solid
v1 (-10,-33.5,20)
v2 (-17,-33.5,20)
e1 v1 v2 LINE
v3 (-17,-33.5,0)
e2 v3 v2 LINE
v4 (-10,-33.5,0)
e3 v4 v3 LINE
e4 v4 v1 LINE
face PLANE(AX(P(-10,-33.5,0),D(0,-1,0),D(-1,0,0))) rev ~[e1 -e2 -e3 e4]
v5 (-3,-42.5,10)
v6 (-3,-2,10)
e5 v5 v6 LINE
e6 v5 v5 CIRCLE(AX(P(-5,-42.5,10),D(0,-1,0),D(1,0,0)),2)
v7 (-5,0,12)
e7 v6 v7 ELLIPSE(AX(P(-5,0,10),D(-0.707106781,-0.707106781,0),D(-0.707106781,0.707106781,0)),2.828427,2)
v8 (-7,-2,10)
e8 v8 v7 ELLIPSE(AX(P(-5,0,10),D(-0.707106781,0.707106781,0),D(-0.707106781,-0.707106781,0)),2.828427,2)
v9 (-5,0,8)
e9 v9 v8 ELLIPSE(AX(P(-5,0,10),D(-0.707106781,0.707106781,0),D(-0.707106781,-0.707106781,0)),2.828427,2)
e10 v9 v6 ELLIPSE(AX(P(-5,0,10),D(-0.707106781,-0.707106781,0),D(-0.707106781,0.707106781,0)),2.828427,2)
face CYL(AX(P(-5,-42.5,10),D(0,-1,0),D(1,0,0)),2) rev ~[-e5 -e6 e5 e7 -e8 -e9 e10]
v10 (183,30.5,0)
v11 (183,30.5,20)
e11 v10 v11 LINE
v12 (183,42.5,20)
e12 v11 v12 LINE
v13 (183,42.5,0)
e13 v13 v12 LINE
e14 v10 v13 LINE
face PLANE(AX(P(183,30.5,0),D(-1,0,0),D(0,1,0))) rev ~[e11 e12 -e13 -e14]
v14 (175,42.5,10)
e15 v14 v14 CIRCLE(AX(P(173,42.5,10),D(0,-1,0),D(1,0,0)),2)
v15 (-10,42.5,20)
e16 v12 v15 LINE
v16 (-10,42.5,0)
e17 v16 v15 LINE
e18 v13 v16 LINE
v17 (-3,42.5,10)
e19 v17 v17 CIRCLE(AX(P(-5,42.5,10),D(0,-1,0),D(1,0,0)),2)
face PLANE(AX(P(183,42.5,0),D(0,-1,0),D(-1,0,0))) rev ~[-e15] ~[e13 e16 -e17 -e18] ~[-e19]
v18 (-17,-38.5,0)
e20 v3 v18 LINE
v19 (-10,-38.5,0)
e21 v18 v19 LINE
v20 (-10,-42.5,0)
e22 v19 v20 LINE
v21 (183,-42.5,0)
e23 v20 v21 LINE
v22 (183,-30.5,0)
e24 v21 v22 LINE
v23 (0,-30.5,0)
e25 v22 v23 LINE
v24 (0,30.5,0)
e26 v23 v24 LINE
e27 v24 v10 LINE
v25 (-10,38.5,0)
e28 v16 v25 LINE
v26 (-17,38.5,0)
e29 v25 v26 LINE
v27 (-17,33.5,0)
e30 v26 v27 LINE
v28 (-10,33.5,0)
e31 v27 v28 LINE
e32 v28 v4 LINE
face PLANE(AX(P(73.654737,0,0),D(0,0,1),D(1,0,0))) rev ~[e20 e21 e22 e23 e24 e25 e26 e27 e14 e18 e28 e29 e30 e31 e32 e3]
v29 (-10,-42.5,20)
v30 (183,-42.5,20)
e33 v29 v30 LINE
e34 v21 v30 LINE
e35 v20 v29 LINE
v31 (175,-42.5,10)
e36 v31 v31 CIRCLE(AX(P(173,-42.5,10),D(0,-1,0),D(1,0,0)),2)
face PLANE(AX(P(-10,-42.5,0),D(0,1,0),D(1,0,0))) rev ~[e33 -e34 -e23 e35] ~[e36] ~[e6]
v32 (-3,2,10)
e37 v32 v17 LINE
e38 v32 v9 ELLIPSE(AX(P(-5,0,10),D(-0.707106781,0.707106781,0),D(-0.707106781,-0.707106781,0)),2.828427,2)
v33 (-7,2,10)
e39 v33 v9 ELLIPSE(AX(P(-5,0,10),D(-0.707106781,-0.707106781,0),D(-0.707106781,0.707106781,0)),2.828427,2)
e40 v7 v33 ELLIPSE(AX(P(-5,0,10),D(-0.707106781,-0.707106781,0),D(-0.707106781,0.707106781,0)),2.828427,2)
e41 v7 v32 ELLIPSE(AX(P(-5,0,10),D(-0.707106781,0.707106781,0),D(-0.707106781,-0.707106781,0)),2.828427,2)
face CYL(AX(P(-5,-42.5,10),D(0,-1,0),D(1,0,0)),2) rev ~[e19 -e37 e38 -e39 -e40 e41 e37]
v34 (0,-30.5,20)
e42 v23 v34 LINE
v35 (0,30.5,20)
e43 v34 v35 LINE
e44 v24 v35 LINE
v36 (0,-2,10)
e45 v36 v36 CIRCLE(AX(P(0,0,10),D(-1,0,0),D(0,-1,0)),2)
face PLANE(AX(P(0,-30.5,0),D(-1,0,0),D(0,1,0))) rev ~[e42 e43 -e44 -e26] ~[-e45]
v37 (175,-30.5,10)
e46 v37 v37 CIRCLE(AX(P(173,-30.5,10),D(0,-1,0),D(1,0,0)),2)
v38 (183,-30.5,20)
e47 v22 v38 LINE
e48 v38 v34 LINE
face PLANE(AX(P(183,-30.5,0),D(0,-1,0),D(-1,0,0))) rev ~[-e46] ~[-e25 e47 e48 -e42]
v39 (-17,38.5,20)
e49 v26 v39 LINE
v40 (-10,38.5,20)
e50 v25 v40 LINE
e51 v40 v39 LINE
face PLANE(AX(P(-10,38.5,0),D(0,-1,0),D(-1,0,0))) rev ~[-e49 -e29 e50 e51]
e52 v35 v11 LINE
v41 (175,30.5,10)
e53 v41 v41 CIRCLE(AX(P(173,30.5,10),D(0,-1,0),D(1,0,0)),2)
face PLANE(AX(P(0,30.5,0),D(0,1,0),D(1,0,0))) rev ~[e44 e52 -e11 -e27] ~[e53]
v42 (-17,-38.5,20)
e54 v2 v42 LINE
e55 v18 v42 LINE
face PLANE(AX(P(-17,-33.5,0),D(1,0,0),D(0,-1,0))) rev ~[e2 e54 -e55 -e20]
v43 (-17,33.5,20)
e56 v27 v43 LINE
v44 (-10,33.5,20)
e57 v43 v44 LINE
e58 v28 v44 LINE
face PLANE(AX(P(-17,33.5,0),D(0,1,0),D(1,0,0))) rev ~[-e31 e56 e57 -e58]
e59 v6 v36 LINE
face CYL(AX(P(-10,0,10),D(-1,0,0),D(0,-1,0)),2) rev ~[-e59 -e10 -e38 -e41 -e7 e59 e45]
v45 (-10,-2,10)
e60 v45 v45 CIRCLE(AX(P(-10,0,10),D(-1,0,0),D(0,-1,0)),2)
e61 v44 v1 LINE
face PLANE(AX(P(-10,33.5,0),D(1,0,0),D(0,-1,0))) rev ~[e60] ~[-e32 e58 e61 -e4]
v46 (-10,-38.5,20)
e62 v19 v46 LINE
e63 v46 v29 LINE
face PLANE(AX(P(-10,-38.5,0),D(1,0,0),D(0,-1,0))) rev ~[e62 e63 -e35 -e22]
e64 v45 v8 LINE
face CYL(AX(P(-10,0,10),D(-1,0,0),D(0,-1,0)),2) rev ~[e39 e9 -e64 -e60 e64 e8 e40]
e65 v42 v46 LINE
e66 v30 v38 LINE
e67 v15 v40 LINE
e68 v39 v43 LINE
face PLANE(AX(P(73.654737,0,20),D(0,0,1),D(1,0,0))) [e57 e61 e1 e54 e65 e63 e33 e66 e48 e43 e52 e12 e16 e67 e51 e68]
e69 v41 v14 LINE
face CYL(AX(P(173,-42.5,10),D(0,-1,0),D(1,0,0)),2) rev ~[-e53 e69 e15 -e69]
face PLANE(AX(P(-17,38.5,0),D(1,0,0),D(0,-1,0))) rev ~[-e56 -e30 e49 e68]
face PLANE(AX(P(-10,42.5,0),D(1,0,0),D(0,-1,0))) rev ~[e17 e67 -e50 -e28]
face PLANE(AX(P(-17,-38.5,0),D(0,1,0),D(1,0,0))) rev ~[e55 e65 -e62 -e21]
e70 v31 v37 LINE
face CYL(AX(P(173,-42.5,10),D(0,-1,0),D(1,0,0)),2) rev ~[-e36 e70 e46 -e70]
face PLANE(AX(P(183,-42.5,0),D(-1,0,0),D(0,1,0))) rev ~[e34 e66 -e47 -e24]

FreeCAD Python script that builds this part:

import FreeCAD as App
import Part
import Sketcher
from FreeCAD import Vector


def add_polygon(sketch, points):
    """Adds a closed chain of lines whose ends are joined by coincident constraints."""
    first, n = sketch.GeometryCount, len(points)
    for a, b in zip(points, points[1:] + points[:1]):
        sketch.addGeometry(Part.LineSegment(App.Vector(*a, 0), App.Vector(*b, 0)), False)
    for i in range(n):
        sketch.addConstraint(Sketcher.Constraint("Coincident", first + i, 2, first + (i + 1) % n, 1))

doc = App.newDocument("Part")
body = doc.addObject("PartDesign::Body", "Body")

# Sketch on XY plane
sketch1 = body.newObject("Sketcher::SketchObject", "Sketch")
sketch1.AttachmentSupport = (doc.getObject("XY_Plane"), [""])
sketch1.MapMode = "FlatFace"
add_polygon(sketch1, [(-10, -42.5), (183, -42.5), (183, -30.5), (0, -30.5), (0, 30.5), (183, 30.5), (183, 42.5), (-10, 42.5), (-10, 38.5), (-17, 38.5), (-17, 33.5), (-10, 33.5), (-10, -33.5), (-17, -33.5), (-17, -38.5), (-10, -38.5)])  # lines 0-15
sketch1.addConstraint(Sketcher.Constraint("Horizontal", 0))
sketch1.addConstraint(Sketcher.Constraint("Vertical", 1))
sketch1.addConstraint(Sketcher.Constraint("Horizontal", 2))
sketch1.addConstraint(Sketcher.Constraint("Vertical", 3))
sketch1.addConstraint(Sketcher.Constraint("Horizontal", 4))
sketch1.addConstraint(Sketcher.Constraint("Vertical", 5))
sketch1.addConstraint(Sketcher.Constraint("Horizontal", 6))
sketch1.addConstraint(Sketcher.Constraint("Vertical", 7))
sketch1.addConstraint(Sketcher.Constraint("Horizontal", 8))
sketch1.addConstraint(Sketcher.Constraint("Vertical", 9))
sketch1.addConstraint(Sketcher.Constraint("Horizontal", 10))
sketch1.addConstraint(Sketcher.Constraint("Vertical", 11))
sketch1.addConstraint(Sketcher.Constraint("Horizontal", 12))
sketch1.addConstraint(Sketcher.Constraint("Vertical", 13))
sketch1.addConstraint(Sketcher.Constraint("Horizontal", 14))
sketch1.addConstraint(Sketcher.Constraint("Vertical", 15))
sketch1.addConstraint(Sketcher.Constraint("Symmetric", 2, 2, 3, 2, -1, 1))
sketch1.addConstraint(Sketcher.Constraint("Symmetric", 0, 2, 5, 2, -1))
sketch1.addConstraint(Sketcher.Constraint("Symmetric", 9, 2, 12, 2, -1))
sketch1.addConstraint(Sketcher.Constraint("Symmetric", 7, 2, 14, 2, -1))
sketch1.addConstraint(Sketcher.Constraint("Vertical", 7, 2, 10, 2))
sketch1.addConstraint(Sketcher.Constraint("DistanceX", 0, 1, 0, 2, 193.0))
sketch1.addConstraint(Sketcher.Constraint("DistanceX", 2, 2, 2, 1, 183.0))
sketch1.addConstraint(Sketcher.Constraint("DistanceX", 8, 2, 8, 1, 7.0))
sketch1.addConstraint(Sketcher.Constraint("DistanceY", 1, 1, 1, 2, 12.0))
sketch1.addConstraint(Sketcher.Constraint("DistanceY", 3, 1, 3, 2, 61.0))
sketch1.addConstraint(Sketcher.Constraint("DistanceY", 7, 2, 7, 1, 4.0))
sketch1.addConstraint(Sketcher.Constraint("DistanceY", 9, 2, 9, 1, 5.0))
pad1 = body.newObject("PartDesign::Pad", "Pad")
pad1.Profile = sketch1
pad1.Length = 20

# Sketch on YZ plane
sketch2 = body.newObject("Sketcher::SketchObject", "Sketch001")
sketch2.AttachmentSupport = (doc.getObject("YZ_Plane"), [""])
sketch2.MapMode = "FlatFace"
sketch2.AttachmentOffset = App.Placement(Vector(0, 0, -10), App.Rotation())
sketch2.addGeometry(Part.Circle(Vector(0, 10, 0), Vector(0, 0, 1), 2), False)
sketch2.addConstraint(Sketcher.Constraint("PointOnObject", 0, 3, -2))
sketch2.addConstraint(Sketcher.Constraint("Diameter", 0, 4.0))
sketch2.addConstraint(Sketcher.Constraint("DistanceY", -1, 1, 0, 3, 10.0))
pocket1 = body.newObject("PartDesign::Pocket", "Pocket")
pocket1.Profile = sketch2
pocket1.Type = "ThroughAll"
pocket1.Reversed = True

# Sketch on XZ plane
sketch3 = body.newObject("Sketcher::SketchObject", "Sketch002")
sketch3.AttachmentSupport = (doc.getObject("XZ_Plane"), [""])
sketch3.MapMode = "FlatFace"
sketch3.AttachmentOffset = App.Placement(Vector(0, 0, 42.5), App.Rotation())
sketch3.addGeometry(Part.Circle(Vector(-5, 10, 0), Vector(0, 0, 1), 2), False)
sketch3.addGeometry(Part.Circle(Vector(173, 10, 0), Vector(0, 0, 1), 2), False)
sketch3.addConstraint(Sketcher.Constraint("Equal", 0, 1))
sketch3.addConstraint(Sketcher.Constraint("Horizontal", 0, 3, 1, 3))
sketch3.addConstraint(Sketcher.Constraint("Diameter", 0, 4.0))
sketch3.addConstraint(Sketcher.Constraint("DistanceX", 0, 3, -1, 1, 5.0))
sketch3.addConstraint(Sketcher.Constraint("DistanceY", -1, 1, 0, 3, 10.0))
sketch3.addConstraint(Sketcher.Constraint("DistanceX", -1, 1, 1, 3, 173.0))
pocket2 = body.newObject("PartDesign::Pocket", "Pocket001")
pocket2.Profile = sketch3
pocket2.Type = "ThroughAll"

doc.recompute()
